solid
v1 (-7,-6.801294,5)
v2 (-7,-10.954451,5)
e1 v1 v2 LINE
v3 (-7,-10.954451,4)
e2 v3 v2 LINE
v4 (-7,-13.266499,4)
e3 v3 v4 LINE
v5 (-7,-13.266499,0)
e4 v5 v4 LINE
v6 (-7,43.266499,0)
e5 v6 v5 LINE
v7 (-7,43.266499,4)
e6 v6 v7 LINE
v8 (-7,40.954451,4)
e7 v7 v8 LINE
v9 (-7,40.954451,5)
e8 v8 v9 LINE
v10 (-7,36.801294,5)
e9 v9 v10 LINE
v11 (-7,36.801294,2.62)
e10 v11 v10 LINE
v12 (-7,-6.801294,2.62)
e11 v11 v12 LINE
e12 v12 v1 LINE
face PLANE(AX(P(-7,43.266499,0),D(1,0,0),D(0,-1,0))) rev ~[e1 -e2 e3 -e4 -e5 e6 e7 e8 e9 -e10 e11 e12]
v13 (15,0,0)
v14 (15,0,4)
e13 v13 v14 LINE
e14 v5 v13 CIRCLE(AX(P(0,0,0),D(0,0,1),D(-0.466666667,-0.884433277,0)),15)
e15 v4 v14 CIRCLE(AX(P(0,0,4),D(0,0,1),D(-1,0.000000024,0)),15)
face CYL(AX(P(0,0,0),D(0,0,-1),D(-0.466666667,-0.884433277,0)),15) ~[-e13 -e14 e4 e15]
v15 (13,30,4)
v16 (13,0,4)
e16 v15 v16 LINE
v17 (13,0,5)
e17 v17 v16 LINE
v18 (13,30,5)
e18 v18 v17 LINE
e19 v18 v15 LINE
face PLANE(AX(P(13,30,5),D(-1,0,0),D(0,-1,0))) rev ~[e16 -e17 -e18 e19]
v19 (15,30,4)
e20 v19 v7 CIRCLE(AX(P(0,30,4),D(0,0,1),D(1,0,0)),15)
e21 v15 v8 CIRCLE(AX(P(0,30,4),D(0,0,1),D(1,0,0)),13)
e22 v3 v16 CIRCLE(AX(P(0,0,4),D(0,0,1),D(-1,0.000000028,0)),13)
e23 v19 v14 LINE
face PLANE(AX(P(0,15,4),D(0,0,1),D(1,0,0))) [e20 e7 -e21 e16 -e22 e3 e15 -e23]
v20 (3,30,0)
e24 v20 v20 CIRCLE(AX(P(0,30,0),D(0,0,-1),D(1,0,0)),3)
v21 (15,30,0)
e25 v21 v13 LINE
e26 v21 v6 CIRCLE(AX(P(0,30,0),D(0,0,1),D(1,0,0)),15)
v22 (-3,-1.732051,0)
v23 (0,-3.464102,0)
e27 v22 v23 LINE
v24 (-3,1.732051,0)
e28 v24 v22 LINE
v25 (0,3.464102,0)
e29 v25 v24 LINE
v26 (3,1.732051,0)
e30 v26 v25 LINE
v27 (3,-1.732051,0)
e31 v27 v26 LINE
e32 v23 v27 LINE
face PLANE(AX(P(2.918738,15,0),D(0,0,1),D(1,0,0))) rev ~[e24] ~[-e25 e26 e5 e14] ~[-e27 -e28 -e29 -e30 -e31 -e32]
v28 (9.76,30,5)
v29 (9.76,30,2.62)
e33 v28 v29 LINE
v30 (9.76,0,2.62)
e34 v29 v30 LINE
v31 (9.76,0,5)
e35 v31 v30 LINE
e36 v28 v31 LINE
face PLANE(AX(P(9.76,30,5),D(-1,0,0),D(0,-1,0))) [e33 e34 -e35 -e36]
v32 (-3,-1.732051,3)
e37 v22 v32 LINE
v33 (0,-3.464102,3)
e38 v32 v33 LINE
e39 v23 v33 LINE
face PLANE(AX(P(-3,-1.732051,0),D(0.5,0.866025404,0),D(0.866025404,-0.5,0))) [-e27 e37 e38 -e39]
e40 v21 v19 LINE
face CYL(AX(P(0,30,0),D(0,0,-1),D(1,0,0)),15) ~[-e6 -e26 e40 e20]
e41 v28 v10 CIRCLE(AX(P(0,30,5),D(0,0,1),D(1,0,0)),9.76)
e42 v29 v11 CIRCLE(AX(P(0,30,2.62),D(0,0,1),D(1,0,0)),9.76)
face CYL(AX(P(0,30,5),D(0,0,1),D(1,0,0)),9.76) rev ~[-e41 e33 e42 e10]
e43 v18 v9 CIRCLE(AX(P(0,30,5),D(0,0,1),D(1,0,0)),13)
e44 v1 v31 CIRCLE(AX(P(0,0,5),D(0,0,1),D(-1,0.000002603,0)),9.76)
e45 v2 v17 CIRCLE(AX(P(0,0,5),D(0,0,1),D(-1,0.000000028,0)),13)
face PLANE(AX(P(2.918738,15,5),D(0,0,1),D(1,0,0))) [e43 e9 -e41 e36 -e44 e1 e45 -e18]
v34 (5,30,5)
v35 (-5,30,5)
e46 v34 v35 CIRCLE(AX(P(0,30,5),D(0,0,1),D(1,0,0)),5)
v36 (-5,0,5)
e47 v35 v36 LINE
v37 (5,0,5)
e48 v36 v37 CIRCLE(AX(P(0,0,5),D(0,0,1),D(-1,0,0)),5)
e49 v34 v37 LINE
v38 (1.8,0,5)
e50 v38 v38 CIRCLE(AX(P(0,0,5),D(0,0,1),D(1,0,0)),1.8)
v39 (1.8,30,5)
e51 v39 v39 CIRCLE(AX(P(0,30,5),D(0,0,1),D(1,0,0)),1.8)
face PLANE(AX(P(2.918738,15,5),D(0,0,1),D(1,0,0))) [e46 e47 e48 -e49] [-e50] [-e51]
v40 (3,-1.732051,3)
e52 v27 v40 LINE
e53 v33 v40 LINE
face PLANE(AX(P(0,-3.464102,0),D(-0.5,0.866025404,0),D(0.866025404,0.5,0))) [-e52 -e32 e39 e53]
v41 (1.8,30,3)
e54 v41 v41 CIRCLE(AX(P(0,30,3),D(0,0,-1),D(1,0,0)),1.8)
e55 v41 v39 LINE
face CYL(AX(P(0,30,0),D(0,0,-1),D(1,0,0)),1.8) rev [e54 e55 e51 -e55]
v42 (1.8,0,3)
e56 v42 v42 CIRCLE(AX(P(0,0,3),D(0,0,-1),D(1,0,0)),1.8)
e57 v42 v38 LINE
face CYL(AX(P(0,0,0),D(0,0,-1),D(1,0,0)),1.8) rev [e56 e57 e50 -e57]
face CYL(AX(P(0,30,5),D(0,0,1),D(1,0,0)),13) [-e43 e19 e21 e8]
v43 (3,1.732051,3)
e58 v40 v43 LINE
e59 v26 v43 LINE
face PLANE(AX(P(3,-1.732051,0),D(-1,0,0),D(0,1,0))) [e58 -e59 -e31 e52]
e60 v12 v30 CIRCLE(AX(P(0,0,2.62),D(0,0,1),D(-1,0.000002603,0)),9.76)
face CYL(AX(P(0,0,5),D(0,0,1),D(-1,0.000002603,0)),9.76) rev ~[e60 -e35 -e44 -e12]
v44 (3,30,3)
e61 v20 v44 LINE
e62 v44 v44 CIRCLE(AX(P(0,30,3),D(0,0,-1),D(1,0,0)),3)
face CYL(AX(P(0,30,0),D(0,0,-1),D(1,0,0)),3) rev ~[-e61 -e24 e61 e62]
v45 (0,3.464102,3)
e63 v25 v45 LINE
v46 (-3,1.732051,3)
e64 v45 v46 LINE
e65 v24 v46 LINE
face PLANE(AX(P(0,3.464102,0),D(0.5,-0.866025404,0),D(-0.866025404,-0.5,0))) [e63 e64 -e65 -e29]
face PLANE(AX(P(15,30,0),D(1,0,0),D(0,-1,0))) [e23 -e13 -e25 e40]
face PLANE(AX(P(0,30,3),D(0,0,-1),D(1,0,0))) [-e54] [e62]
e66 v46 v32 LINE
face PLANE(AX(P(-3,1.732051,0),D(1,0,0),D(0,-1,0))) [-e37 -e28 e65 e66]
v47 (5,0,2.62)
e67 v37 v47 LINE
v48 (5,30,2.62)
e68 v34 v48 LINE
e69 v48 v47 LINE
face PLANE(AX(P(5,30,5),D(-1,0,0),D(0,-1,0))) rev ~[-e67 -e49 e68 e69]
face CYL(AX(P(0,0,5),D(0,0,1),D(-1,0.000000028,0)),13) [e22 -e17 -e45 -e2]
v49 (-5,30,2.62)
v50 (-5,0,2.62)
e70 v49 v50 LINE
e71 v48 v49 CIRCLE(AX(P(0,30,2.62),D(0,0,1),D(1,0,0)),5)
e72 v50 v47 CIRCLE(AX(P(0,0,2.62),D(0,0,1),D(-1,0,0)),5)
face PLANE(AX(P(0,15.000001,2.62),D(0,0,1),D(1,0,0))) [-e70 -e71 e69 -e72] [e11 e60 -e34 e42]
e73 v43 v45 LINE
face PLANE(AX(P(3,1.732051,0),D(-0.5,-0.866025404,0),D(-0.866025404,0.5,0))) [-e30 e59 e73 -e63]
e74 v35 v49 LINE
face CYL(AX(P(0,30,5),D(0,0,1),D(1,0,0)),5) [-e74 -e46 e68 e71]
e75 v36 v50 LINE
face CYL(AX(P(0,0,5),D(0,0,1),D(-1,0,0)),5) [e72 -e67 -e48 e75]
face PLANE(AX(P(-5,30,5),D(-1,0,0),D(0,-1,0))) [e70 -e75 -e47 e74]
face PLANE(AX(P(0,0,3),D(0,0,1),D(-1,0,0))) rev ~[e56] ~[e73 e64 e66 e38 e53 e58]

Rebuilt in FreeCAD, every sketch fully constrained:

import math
import FreeCAD as App
import Part
import Sketcher

V = App.Vector
Q = App.Units.Quantity


def add_polygon(sketch, points):
    """Adds a closed chain of lines whose ends are joined by coincident constraints."""
    first, n = sketch.GeometryCount, len(points)
    for a, b in zip(points, points[1:] + points[:1]):
        sketch.addGeometry(Part.LineSegment(App.Vector(*a, 0), App.Vector(*b, 0)), False)
    for i in range(n):
        sketch.addConstraint(Sketcher.Constraint("Coincident", first + i, 2, first + (i + 1) % n, 1))

doc = App.newDocument("Part")
body = doc.addObject("PartDesign::Body", "Body")

# Sketch on XY plane
sketch1 = doc.addObject("Sketcher::SketchObject", "Sketch")
body.addObject(sketch1)
sketch1.AttachmentSupport = (doc.XY_Plane, [""])
sketch1.MapMode = "FlatFace"
sketch1.addGeometry([
    Part.ArcOfCircle(Part.Circle(V(0, 0, 0), V(0, 0, 1), 15), math.radians(-118), math.radians(0)),  # 0
    Part.LineSegment(V(15, 0, 0), V(15, 30, 0)),  # 1
    Part.ArcOfCircle(Part.Circle(V(0, 30, 0), V(0, 0, 1), 15), math.radians(0), math.radians(118)),  # 2
    Part.LineSegment(V(-7, 43.3, 0), V(-7, -13.3, 0)),  # 3
    Part.Circle(V(0, 0, 0), V(0, 0, 1), 1.8),  # 4
    Part.Circle(V(0, 30, 0), V(0, 0, 1), 1.8),  # 5
], False)
sketch1.addConstraint([
    Sketcher.Constraint("Tangent", 0, 2, 1, 1),
    Sketcher.Constraint("Tangent", 1, 2, 2, 1),
    Sketcher.Constraint("Coincident", 2, 2, 3, 1),
    Sketcher.Constraint("Coincident", 3, 2, 0, 1),
    Sketcher.Constraint("Vertical", 1),
    Sketcher.Constraint("Vertical", 3),
    Sketcher.Constraint("Coincident", 0, 3, -1, 1),
    Sketcher.Constraint("Coincident", 4, 3, -1, 1),
    Sketcher.Constraint("Coincident", 5, 3, 2, 3),
    Sketcher.Constraint("Equal", 0, 2),
    Sketcher.Constraint("Equal", 4, 5),
    Sketcher.Constraint("Radius", 0, 15.0),
    Sketcher.Constraint("Diameter", 4, 3.6),
    Sketcher.Constraint("DistanceY", 1, 1, 1, 2, 30.0),
    Sketcher.Constraint("DistanceX", 2, 2, -1, 1, 7.0),
])
pad1 = doc.addObject("PartDesign::Pad", "Pad")
body.addObject(pad1)
pad1.Profile = sketch1
pad1.Length = 5

# Sketch on XY plane
sketch2 = doc.addObject("Sketcher::SketchObject", "Sketch001")
body.addObject(sketch2)
sketch2.AttachmentSupport = (doc.XY_Plane, [""])
sketch2.MapMode = "FlatFace"
sketch2.AttachmentOffset = App.Placement(V(0, 0, 5), App.Rotation())
sketch2.addGeometry([
    Part.ArcOfCircle(Part.Circle(V(0, 30, 0), V(0, 0, 1), 10), math.radians(0), math.radians(180)),  # 0
    Part.LineSegment(V(-10, 30, 0), V(-10, 0, 0)),  # 1
    Part.ArcOfCircle(Part.Circle(V(0, 0, 0), V(0, 0, 1), 10), math.radians(180), math.radians(360)),  # 2
    Part.LineSegment(V(10, 0, 0), V(10, 30, 0)),  # 3
    Part.ArcOfCircle(Part.Circle(V(0, 30, 0), V(0, 0, 1), 5), math.radians(0), math.radians(180)),  # 4
    Part.LineSegment(V(5, 30, 0), V(5, 0, 0)),  # 5
    Part.ArcOfCircle(Part.Circle(V(0, 0, 0), V(0, 0, 1), 5), math.radians(180), math.radians(360)),  # 6
    Part.LineSegment(V(-5, 0, 0), V(-5, 30, 0)),  # 7
], False)
sketch2.addConstraint([
    Sketcher.Constraint("Tangent", 0, 2, 1, 1),
    Sketcher.Constraint("Coincident", 1, 2, 2, 1),
    Sketcher.Constraint("Tangent", 2, 2, 3, 1),
    Sketcher.Constraint("Tangent", 3, 2, 0, 1),
    Sketcher.Constraint("Tangent", 4, 1, 5, 1),
    Sketcher.Constraint("Tangent", 5, 2, 6, 2),
    Sketcher.Constraint("Tangent", 6, 1, 7, 1),
    Sketcher.Constraint("Tangent", 7, 2, 4, 2),
    Sketcher.Constraint("Vertical", 1),
    Sketcher.Constraint("Vertical", 3),
    Sketcher.Constraint("Vertical", 5),
    Sketcher.Constraint("Vertical", 7),
    Sketcher.Constraint("Coincident", 2, 3, -1, 1),
    Sketcher.Constraint("Coincident", 6, 3, -1, 1),
    Sketcher.Constraint("Horizontal", 4, 3, 0, 2),
    Sketcher.Constraint("Radius", 4, 5.0),
    Sketcher.Constraint("DistanceY", 3, 1, 3, 2, 30.0),
    Sketcher.Constraint("Radius", 0, 9.76),
    Sketcher.Constraint("DistanceY", 1, 2, 1, 1, 29.999975),
])
pocket1 = doc.addObject("PartDesign::Pocket", "Pocket")
body.addObject(pocket1)
pocket1.Profile = sketch2
pocket1.Length = 2.38

# Sketch on XY plane
sketch3 = doc.addObject("Sketcher::SketchObject", "Sketch002")
body.addObject(sketch3)
sketch3.AttachmentSupport = (doc.XY_Plane, [""])
sketch3.MapMode = "FlatFace"
sketch3.AttachmentOffset = App.Placement(V(0, 0, 5), App.Rotation())
sketch3.addGeometry([
    Part.ArcOfCircle(Part.Circle(V(0, 30, 0), V(0, 0, 1), 15), math.radians(0), math.radians(180)),  # 0
    Part.LineSegment(V(-15, 30, 0), V(-15, 0, 0)),  # 1
    Part.ArcOfCircle(Part.Circle(V(0, 0, 0), V(0, 0, 1), 15), math.radians(180), math.radians(360)),  # 2
    Part.LineSegment(V(15, 0, 0), V(15, 30, 0)),  # 3
    Part.ArcOfCircle(Part.Circle(V(0, 30, 0), V(0, 0, 1), 13), math.radians(0), math.radians(180)),  # 4
    Part.LineSegment(V(13, 30, 0), V(13, 0, 0)),  # 5
    Part.ArcOfCircle(Part.Circle(V(0, 0, 0), V(0, 0, 1), 13), math.radians(180), math.radians(360)),  # 6
    Part.LineSegment(V(-13, 0, 0), V(-13, 30, 0)),  # 7
], False)
sketch3.addConstraint([
    Sketcher.Constraint("Tangent", 0, 2, 1, 1),
    Sketcher.Constraint("Tangent", 1, 2, 2, 1),
    Sketcher.Constraint("Tangent", 2, 2, 3, 1),
    Sketcher.Constraint("Tangent", 3, 2, 0, 1),
    Sketcher.Constraint("Tangent", 4, 1, 5, 1),
    Sketcher.Constraint("Tangent", 5, 2, 6, 2),
    Sketcher.Constraint("Tangent", 6, 1, 7, 1),
    Sketcher.Constraint("Tangent", 7, 2, 4, 2),
    Sketcher.Constraint("Vertical", 1),
    Sketcher.Constraint("Vertical", 3),
    Sketcher.Constraint("Vertical", 5),
    Sketcher.Constraint("Vertical", 7),
    Sketcher.Constraint("Coincident", 2, 3, -1, 1),
    Sketcher.Constraint("Coincident", 6, 3, -1, 1),
    Sketcher.Constraint("Horizontal", 4, 3, 0, 2),
    Sketcher.Constraint("Radius", 0, 15.0),
    Sketcher.Constraint("Radius", 4, 13.0),
    Sketcher.Constraint("DistanceY", 1, 2, 1, 1, 30.0),
])
pocket2 = doc.addObject("PartDesign::Pocket", "Pocket001")
body.addObject(pocket2)
pocket2.Profile = sketch3
pocket2.Length = 1

# Sketch on XY plane
sketch4 = doc.addObject("Sketcher::SketchObject", "Sketch003")
body.addObject(sketch4)
sketch4.AttachmentSupport = (doc.XY_Plane, [""])
sketch4.MapMode = "FlatFace"
sketch4.addGeometry(Part.Circle(V(0, 30, 0), V(0, 0, 1), 3), False)  # 0
add_polygon(sketch4, [(-3, -1.7), (-3, 1.7), (0, 3.5), (3, 1.7), (3, -1.7), (0, -3.5)])  # lines 1-6
sketch4.addConstraint([
    Sketcher.Constraint("Vertical", 1),
    Sketcher.Constraint("Vertical", 4),
    Sketcher.Constraint("Symmetric", 1, 2, 4, 2, -1, 1),
    Sketcher.Constraint("Symmetric", 2, 2, 5, 2, -1, 1),
    Sketcher.Constraint("PointOnObject", 0, 3, -2),
    Sketcher.Constraint("PointOnObject", 2, 2, -2),
    Sketcher.Constraint("Parallel", 3, 6),
    Sketcher.Constraint("Horizontal", 1, 2, 3, 2),
    Sketcher.Constraint("Diameter", 0, 6.0),
    Sketcher.Constraint("Angle", 2, Q("30 deg")),
    Sketcher.Constraint("DistanceY", -1, 1, 0, 3, 30.0),
    Sketcher.Constraint("DistanceX", 1, 2, -1, 1, 3.0),
    Sketcher.Constraint("DistanceY", 1, 1, 1, 2, 3.464102),
])
pocket3 = doc.addObject("PartDesign::Pocket", "Pocket002")
body.addObject(pocket3)
pocket3.Profile = sketch4
pocket3.Length = 3
pocket3.Reversed = True

doc.recompute()
